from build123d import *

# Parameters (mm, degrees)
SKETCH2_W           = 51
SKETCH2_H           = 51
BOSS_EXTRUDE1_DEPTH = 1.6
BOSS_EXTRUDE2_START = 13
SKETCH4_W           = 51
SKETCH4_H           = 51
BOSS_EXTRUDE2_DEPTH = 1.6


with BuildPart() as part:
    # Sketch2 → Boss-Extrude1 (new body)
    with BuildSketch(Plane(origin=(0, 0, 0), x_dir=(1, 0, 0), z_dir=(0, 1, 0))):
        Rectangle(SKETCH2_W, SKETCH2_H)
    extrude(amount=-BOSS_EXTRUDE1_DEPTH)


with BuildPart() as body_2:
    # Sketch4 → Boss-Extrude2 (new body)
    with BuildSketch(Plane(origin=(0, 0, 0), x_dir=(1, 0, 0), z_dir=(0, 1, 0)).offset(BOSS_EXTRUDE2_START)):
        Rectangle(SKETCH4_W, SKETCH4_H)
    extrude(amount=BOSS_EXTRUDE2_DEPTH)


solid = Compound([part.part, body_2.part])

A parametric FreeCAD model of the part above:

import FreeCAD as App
import Part
import Sketcher
from FreeCAD import Vector
Q = App.Units.Quantity


def add_polygon(sketch, points):
    """Adds a closed chain of lines whose ends are joined by coincident constraints."""
    first, n = sketch.GeometryCount, len(points)
    for a, b in zip(points, points[1:] + points[:1]):
        sketch.addGeometry(Part.LineSegment(App.Vector(*a, 0), App.Vector(*b, 0)), False)
    for i in range(n):
        sketch.addConstraint(Sketcher.Constraint("Coincident", first + i, 2, first + (i + 1) % n, 1))

doc = App.newDocument("Part")
body = doc.addObject("PartDesign::Body", "Body")

# Sketch on XZ plane
sketch1 = body.newObject("Sketcher::SketchObject", "Sketch")
sketch1.AttachmentSupport = (doc.getObject("XZ_Plane"), [""])
sketch1.MapMode = "FlatFace"
add_polygon(sketch1, [(-26, -26), (-26, 26), (26, 26), (26, -26)])  # lines 0-3
sketch1.addConstraint(Sketcher.Constraint("Vertical", 0))
sketch1.addConstraint(Sketcher.Constraint("Horizontal", 1))
sketch1.addConstraint(Sketcher.Constraint("Vertical", 2))
sketch1.addConstraint(Sketcher.Constraint("Horizontal", 3))
sketch1.addConstraint(Sketcher.Constraint("Symmetric", 0, 2, 2, 2, -1, 1))
sketch1.addConstraint(Sketcher.Constraint("Equal", 3, 0))
sketch1.addConstraint(Sketcher.Constraint("DistanceX", 1, 1, 1, 2, Q("51 mm")))
pad1 = body.newObject("PartDesign::Pad", "Pad")
pad1.Profile = sketch1
pad1.Length = 1.6
body2 = doc.addObject("PartDesign::Body", "Body001")

# Sketch on XZ plane
sketch2 = body2.newObject("Sketcher::SketchObject", "Sketch001")
sketch2.AttachmentSupport = (doc.getObject("XZ_Plane001"), [""])
sketch2.MapMode = "FlatFace"
sketch2.AttachmentOffset = App.Placement(Vector(0, 0, -13), App.Rotation())
add_polygon(sketch2, [(-26, -26), (-26, 26), (26, 26), (26, -26)])  # lines 0-3
sketch2.addConstraint(Sketcher.Constraint("Vertical", 0))
sketch2.addConstraint(Sketcher.Constraint("Horizontal", 1))
sketch2.addConstraint(Sketcher.Constraint("Vertical", 2))
sketch2.addConstraint(Sketcher.Constraint("Horizontal", 3))
sketch2.addConstraint(Sketcher.Constraint("Symmetric", 0, 2, 2, 2, -1, 1))
sketch2.addConstraint(Sketcher.Constraint("Equal", 3, 0))
sketch2.addConstraint(Sketcher.Constraint("DistanceX", 1, 1, 1, 2, Q("51 mm")))
pad2 = body2.newObject("PartDesign::Pad", "Pad001")
pad2.Profile = sketch2
pad2.Length = 1.6
pad2.Reversed = True

doc.recompute()
